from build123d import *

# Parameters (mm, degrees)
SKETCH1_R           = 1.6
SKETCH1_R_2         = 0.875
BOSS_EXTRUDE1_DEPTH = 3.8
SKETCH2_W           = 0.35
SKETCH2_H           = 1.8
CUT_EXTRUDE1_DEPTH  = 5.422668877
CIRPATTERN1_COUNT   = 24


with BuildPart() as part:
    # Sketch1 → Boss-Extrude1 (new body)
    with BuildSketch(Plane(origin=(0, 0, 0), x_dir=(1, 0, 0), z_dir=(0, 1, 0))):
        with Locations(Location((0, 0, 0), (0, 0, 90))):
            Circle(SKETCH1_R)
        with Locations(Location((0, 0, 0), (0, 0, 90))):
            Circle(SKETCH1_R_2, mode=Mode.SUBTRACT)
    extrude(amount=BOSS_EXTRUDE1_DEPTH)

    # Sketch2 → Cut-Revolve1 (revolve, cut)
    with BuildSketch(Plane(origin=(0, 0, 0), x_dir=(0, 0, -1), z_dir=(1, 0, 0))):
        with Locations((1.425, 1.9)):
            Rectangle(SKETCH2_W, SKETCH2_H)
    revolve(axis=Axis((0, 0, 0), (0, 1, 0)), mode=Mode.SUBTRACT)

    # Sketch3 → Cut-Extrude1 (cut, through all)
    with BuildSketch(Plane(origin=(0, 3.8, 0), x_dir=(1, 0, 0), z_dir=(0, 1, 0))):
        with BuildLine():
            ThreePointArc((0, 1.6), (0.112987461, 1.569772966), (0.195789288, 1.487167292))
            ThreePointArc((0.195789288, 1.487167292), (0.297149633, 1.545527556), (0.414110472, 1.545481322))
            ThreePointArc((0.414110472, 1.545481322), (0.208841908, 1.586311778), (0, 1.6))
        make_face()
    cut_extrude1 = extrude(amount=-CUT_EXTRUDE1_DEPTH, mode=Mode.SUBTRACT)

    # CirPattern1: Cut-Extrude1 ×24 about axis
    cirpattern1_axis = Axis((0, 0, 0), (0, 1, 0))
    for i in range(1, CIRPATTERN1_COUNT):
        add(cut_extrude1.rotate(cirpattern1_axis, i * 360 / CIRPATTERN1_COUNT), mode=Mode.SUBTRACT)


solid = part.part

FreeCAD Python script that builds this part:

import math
import FreeCAD as App
import Part
import Sketcher

V = App.Vector


def add_polygon(sketch, points):
    """Adds a closed chain of lines whose ends are joined by coincident constraints."""
    first, n = sketch.GeometryCount, len(points)
    for a, b in zip(points, points[1:] + points[:1]):
        sketch.addGeometry(Part.LineSegment(App.Vector(*a, 0), App.Vector(*b, 0)), False)
    for i in range(n):
        sketch.addConstraint(Sketcher.Constraint("Coincident", first + i, 2, first + (i + 1) % n, 1))

doc = App.newDocument("Part")
body = doc.addObject("PartDesign::Body", "Body")

# Sketch on XZ plane
sketch1 = body.newObject("Sketcher::SketchObject", "Sketch")
sketch1.AttachmentSupport = (doc.getObject("XZ_Plane"), [""])
sketch1.MapMode = "FlatFace"
sketch1.addGeometry([
    Part.Circle(V(0, 0, 0), V(0, 0, 1), 1.6),
    Part.Circle(V(0, 0, 0), V(0, 0, 1), 0.9),
], False)
sketch1.addConstraint([
    Sketcher.Constraint("Coincident", 0, 3, -1, 1),
    Sketcher.Constraint("Coincident", 1, 3, -1, 1),
    Sketcher.Constraint("Diameter", 0, 3.2),
    Sketcher.Constraint("Diameter", 1, 1.75),
])
pad1 = body.newObject("PartDesign::Pad", "Pad")
pad1.Profile = sketch1
pad1.Length = 3.8
pad1.Reversed = True

# Sketch on YZ plane
sketch2 = body.newObject("Sketcher::SketchObject", "Sketch001")
sketch2.AttachmentSupport = (doc.getObject("YZ_Plane"), [""])
sketch2.MapMode = "FlatFace"
add_polygon(sketch2, [(2.8, -1.25), (1, -1.25), (1, -1.6), (2.8, -1.6)])  # lines 0-3
sketch2.addConstraint([
    Sketcher.Constraint("Horizontal", 0),
    Sketcher.Constraint("Vertical", 1),
    Sketcher.Constraint("Horizontal", 2),
    Sketcher.Constraint("Vertical", 3),
    Sketcher.Constraint("DistanceX", 0, 2, 0, 1, 1.8),
    Sketcher.Constraint("DistanceX", -1, 1, 0, 2, 1.0),
    Sketcher.Constraint("DistanceY", 1, 2, 1, 1, 0.35),
    Sketcher.Constraint("DistanceY", 1, 2, -1, 1, 1.6),
])
groove = body.newObject("PartDesign::Groove", "Groove")
groove.Profile = sketch2
groove.ReferenceAxis = (sketch2, ["H_Axis"])
groove.Angle = 360

# Sketch on XZ plane
sketch3 = body.newObject("Sketcher::SketchObject", "Sketch002")
sketch3.AttachmentSupport = (doc.getObject("XZ_Plane"), [""])
sketch3.MapMode = "FlatFace"
sketch3.AttachmentOffset = App.Placement(V(0, 0, -3.8), App.Rotation())
sketch3.addGeometry([
    Part.ArcOfCircle(Part.Circle(V(0, -1.37, 0), V(0, 0, 1), 0.23), math.radians(-90), math.radians(-30)),
    Part.ArcOfCircle(Part.Circle(V(0.36, -1.33, 0), V(0, 0, 1), 0.23), math.radians(-135), math.radians(-75)),
    Part.ArcOfCircle(Part.Circle(V(0, 0, 0), V(0, 0, 1), 1.6), math.radians(-90), math.radians(-75)),
], False)
sketch3.addConstraint([
    Sketcher.Constraint("Coincident", 0, 2, 1, 1),
    Sketcher.Constraint("Tangent", 1, 2, 2, 2),
    Sketcher.Constraint("Tangent", 2, 1, 0, 1),
    Sketcher.Constraint("Coincident", 2, 3, -1, 1),
    Sketcher.Constraint("Equal", 0, 1),
    Sketcher.Constraint("PointOnObject", 0, 3, -2),
    Sketcher.Constraint("Radius", 2, 1.6),
    Sketcher.Constraint("Radius", 0, 0.226285),
    Sketcher.Constraint("DistanceX", -1, 1, 0, 2, 0.195789),
])
pocket1 = body.newObject("PartDesign::Pocket", "Pocket")
pocket1.Profile = sketch3
pocket1.Type = "ThroughAll"
pocket1.Reversed = True
doc.recompute()

polarpattern = body.newObject("PartDesign::PolarPattern", "PolarPattern")
polarpattern.Originals = [pocket1]
polarpattern.Axis = (doc.getObject("Y_Axis"), [""])
polarpattern.Angle = 360
polarpattern.Occurrences = 24
body.Tip = polarpattern

doc.recompute()
